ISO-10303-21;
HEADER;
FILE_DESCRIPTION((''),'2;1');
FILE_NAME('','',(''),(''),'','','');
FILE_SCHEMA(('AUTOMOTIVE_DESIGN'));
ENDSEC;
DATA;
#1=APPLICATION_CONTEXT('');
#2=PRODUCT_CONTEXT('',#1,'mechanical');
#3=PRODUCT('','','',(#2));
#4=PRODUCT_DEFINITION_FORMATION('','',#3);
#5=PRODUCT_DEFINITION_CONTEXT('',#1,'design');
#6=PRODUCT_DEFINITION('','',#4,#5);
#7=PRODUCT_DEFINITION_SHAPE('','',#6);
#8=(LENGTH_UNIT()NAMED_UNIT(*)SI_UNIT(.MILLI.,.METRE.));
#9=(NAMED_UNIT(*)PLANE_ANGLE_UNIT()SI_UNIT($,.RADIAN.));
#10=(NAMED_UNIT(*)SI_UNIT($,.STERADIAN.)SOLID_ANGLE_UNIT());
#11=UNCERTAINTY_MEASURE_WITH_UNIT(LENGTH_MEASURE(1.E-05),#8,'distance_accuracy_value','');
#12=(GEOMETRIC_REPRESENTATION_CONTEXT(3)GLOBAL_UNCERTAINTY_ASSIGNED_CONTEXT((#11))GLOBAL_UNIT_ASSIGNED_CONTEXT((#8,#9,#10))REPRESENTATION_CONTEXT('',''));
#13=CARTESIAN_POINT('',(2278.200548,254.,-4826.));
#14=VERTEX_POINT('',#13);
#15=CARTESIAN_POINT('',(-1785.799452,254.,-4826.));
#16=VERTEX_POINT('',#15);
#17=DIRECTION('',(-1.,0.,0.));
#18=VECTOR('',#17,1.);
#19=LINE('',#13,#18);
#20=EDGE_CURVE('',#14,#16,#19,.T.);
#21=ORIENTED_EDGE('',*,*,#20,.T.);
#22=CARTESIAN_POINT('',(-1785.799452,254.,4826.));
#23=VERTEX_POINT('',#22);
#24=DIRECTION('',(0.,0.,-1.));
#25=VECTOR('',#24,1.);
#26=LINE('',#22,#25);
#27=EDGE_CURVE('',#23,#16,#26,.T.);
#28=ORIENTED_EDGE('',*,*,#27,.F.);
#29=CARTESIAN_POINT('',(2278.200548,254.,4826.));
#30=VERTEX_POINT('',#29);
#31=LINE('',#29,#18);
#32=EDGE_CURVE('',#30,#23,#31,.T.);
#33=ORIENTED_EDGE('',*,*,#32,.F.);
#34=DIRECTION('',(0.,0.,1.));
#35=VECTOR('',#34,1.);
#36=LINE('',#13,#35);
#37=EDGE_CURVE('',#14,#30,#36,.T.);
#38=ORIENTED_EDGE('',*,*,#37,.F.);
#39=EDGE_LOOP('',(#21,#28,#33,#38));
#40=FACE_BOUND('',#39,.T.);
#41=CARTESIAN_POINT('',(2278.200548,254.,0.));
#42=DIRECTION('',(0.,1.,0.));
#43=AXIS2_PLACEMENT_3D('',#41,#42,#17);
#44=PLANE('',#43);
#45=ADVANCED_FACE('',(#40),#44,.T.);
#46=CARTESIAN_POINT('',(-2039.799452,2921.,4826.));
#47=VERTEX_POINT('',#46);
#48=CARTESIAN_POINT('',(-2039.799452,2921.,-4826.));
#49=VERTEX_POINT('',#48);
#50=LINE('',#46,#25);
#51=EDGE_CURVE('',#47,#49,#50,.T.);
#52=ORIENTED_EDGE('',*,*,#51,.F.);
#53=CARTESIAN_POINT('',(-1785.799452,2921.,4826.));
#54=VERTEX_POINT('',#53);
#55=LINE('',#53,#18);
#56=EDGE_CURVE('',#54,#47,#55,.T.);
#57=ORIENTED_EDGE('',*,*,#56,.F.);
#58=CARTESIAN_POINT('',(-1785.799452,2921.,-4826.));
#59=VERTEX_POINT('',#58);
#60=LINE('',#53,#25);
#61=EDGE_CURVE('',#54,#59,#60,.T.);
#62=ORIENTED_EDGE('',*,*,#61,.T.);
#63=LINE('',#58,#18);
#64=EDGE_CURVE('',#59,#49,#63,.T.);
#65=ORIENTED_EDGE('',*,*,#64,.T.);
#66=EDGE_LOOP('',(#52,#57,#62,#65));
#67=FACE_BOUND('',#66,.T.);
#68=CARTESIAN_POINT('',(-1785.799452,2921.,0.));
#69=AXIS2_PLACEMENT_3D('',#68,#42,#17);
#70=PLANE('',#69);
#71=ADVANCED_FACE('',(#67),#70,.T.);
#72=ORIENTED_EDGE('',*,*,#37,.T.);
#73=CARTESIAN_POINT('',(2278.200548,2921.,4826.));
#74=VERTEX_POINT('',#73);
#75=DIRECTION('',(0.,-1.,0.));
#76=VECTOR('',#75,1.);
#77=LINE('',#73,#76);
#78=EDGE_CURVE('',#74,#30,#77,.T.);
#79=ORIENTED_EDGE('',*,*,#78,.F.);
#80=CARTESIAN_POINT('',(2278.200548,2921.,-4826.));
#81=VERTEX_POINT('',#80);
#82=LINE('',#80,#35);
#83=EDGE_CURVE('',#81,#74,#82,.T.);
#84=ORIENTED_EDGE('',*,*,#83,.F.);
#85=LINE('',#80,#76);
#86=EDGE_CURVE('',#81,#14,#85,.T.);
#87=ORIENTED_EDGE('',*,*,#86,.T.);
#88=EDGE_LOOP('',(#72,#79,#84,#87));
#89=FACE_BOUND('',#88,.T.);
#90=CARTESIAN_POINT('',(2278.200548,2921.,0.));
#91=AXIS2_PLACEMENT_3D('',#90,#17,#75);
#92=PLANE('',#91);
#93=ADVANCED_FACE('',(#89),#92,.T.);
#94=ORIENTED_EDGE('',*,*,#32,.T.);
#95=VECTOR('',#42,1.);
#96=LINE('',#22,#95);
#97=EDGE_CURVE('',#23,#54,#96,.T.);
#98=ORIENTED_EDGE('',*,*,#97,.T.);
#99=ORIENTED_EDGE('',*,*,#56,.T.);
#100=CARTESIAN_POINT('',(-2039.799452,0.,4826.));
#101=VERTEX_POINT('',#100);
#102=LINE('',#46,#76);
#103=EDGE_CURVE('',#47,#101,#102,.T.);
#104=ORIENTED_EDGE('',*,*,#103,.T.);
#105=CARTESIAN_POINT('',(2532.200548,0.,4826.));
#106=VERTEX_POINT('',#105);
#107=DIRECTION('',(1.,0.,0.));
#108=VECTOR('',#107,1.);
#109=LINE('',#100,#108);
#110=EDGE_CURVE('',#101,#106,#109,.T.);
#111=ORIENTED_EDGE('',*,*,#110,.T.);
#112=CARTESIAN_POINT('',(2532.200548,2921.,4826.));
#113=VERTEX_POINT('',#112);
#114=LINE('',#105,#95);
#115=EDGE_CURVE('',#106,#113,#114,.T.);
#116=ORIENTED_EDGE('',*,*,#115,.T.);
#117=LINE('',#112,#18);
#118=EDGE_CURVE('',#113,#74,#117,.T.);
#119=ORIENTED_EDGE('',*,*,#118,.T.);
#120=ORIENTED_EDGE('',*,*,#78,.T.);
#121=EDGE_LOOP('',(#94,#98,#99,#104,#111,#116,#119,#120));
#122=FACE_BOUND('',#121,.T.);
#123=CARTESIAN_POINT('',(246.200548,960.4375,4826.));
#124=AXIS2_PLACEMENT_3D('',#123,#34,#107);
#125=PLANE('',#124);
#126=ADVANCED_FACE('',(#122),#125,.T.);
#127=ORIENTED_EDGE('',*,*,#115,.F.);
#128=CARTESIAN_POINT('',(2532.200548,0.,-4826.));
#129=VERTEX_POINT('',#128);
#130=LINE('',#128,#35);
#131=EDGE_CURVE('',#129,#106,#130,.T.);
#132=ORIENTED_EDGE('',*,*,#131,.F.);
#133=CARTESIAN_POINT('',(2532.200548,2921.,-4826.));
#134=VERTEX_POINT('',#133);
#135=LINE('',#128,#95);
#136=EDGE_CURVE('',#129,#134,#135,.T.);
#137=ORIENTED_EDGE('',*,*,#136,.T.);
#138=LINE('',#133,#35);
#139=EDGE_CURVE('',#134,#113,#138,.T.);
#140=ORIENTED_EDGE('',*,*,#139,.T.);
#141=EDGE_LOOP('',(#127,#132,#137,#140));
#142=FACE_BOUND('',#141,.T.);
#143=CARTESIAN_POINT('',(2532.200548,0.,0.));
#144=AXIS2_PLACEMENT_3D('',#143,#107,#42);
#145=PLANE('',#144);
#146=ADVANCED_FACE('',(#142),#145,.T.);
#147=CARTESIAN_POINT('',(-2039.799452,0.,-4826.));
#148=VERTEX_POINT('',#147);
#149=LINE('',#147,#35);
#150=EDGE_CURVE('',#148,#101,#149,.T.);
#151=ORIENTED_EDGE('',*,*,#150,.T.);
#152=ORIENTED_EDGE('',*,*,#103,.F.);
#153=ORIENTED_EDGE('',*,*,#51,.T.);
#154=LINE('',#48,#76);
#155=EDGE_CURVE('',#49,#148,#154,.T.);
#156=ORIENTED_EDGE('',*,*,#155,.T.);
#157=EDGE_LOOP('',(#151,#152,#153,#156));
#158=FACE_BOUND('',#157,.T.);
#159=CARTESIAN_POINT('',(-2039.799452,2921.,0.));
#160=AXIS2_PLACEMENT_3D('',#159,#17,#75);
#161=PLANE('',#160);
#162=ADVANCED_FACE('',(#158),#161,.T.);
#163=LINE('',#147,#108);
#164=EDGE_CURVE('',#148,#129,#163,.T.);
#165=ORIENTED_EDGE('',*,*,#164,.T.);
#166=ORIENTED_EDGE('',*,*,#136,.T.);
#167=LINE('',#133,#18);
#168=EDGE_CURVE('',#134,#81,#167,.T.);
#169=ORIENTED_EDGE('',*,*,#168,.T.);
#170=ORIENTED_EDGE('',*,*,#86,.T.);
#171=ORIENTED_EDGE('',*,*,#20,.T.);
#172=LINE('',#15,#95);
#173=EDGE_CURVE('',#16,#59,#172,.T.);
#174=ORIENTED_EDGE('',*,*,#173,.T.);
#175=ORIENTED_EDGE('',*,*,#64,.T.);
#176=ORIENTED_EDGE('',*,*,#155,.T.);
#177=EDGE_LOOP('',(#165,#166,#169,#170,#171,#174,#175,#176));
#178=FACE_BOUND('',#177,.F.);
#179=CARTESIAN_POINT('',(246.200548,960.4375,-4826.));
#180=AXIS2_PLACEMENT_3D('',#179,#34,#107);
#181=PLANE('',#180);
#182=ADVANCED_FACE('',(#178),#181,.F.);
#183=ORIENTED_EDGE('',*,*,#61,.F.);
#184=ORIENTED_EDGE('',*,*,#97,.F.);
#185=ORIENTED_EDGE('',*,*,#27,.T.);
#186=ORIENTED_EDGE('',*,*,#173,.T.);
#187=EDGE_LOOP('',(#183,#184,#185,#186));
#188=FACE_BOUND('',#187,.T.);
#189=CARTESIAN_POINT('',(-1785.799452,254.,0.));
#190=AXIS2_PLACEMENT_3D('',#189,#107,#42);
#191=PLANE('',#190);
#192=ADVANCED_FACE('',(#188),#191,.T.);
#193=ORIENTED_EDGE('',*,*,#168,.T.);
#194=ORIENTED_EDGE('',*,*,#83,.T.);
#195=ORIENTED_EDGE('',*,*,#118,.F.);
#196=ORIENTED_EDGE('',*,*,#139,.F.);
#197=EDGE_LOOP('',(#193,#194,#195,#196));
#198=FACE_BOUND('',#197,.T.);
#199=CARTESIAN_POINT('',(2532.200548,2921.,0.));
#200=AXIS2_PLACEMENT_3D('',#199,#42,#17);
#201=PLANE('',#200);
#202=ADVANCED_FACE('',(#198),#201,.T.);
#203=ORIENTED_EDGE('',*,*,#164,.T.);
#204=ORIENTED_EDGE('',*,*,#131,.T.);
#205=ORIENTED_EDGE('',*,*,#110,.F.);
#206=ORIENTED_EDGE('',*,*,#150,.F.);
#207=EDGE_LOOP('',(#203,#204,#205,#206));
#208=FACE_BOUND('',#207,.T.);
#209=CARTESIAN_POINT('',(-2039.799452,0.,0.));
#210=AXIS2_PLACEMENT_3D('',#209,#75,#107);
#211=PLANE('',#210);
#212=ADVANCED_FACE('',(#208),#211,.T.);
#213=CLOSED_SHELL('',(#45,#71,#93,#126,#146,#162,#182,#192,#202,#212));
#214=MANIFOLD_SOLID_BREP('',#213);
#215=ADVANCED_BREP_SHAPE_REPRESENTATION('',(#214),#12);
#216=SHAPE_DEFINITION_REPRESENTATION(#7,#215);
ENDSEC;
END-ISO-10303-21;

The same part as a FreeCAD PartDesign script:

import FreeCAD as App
import Part
import Sketcher
Q = App.Units.Quantity

doc = App.newDocument("Part")
body = doc.addObject("PartDesign::Body", "Body")

# Sketch on XY plane
sketch1 = doc.addObject("Sketcher::SketchObject", "Sketch")
body.addObject(sketch1)
sketch1.AttachmentSupport = (doc.XY_Plane, [""])
sketch1.MapMode = "FlatFace"
sketch1.addGeometry(Part.LineSegment(App.Vector(-2040, 2921, 0), App.Vector(-2040, 0, 0)), False)
sketch1.addGeometry(Part.LineSegment(App.Vector(-2040, 0, 0), App.Vector(2532, 0, 0)), False)
sketch1.addGeometry(Part.LineSegment(App.Vector(2532, 0, 0), App.Vector(2532, 2921, 0)), False)
sketch1.addGeometry(Part.LineSegment(App.Vector(2532, 2921, 0), App.Vector(2278, 2921, 0)), False)
sketch1.addGeometry(Part.LineSegment(App.Vector(2278, 2921, 0), App.Vector(2278, 254, 0)), False)
sketch1.addGeometry(Part.LineSegment(App.Vector(2278, 254, 0), App.Vector(-1786, 254, 0)), False)
sketch1.addGeometry(Part.LineSegment(App.Vector(-1786, 254, 0), App.Vector(-1786, 2921, 0)), False)
sketch1.addGeometry(Part.LineSegment(App.Vector(-1786, 2921, 0), App.Vector(-2040, 2921, 0)), False)
sketch1.addConstraint(Sketcher.Constraint("Coincident", 0, 2, 1, 1))
sketch1.addConstraint(Sketcher.Constraint("Coincident", 1, 2, 2, 1))
sketch1.addConstraint(Sketcher.Constraint("Coincident", 2, 2, 3, 1))
sketch1.addConstraint(Sketcher.Constraint("Coincident", 3, 2, 4, 1))
sketch1.addConstraint(Sketcher.Constraint("Coincident", 4, 2, 5, 1))
sketch1.addConstraint(Sketcher.Constraint("Coincident", 5, 2, 6, 1))
sketch1.addConstraint(Sketcher.Constraint("Coincident", 6, 2, 7, 1))
sketch1.addConstraint(Sketcher.Constraint("Coincident", 7, 2, 0, 1))
sketch1.addConstraint(Sketcher.Constraint("Vertical", 0))
sketch1.addConstraint(Sketcher.Constraint("Horizontal", 1))
sketch1.addConstraint(Sketcher.Constraint("Vertical", 2))
sketch1.addConstraint(Sketcher.Constraint("Horizontal", 3))
sketch1.addConstraint(Sketcher.Constraint("Vertical", 4))
sketch1.addConstraint(Sketcher.Constraint("Horizontal", 5))
sketch1.addConstraint(Sketcher.Constraint("Vertical", 6))
sketch1.addConstraint(Sketcher.Constraint("Horizontal", 7))
sketch1.addConstraint(Sketcher.Constraint("PointOnObject", 0, 2, -1))
sketch1.addConstraint(Sketcher.Constraint("Horizontal", 3, 2, 6, 2))
sketch1.addConstraint(Sketcher.Constraint("Equal", 3, 7))
sketch1.addConstraint(Sketcher.Constraint("DistanceX", 1, 1, 1, 2, Q("180 in")))
sketch1.addConstraint(Sketcher.Constraint("DistanceX", 3, 2, 3, 1, Q("10 in")))
sketch1.addConstraint(Sketcher.Constraint("DistanceY", 0, 2, 0, 1, Q("115 in")))
sketch1.addConstraint(Sketcher.Constraint("DistanceY", 4, 2, 4, 1, Q("105 in")))
sketch1.addConstraint(Sketcher.Constraint("DistanceX", 0, 2, -1, 1, 2039.799452))
pad1 = doc.addObject("PartDesign::Pad", "Pad")
body.addObject(pad1)
pad1.Profile = sketch1
pad1.Length = Q("380 in")
pad1.Midplane = True

doc.recompute()
